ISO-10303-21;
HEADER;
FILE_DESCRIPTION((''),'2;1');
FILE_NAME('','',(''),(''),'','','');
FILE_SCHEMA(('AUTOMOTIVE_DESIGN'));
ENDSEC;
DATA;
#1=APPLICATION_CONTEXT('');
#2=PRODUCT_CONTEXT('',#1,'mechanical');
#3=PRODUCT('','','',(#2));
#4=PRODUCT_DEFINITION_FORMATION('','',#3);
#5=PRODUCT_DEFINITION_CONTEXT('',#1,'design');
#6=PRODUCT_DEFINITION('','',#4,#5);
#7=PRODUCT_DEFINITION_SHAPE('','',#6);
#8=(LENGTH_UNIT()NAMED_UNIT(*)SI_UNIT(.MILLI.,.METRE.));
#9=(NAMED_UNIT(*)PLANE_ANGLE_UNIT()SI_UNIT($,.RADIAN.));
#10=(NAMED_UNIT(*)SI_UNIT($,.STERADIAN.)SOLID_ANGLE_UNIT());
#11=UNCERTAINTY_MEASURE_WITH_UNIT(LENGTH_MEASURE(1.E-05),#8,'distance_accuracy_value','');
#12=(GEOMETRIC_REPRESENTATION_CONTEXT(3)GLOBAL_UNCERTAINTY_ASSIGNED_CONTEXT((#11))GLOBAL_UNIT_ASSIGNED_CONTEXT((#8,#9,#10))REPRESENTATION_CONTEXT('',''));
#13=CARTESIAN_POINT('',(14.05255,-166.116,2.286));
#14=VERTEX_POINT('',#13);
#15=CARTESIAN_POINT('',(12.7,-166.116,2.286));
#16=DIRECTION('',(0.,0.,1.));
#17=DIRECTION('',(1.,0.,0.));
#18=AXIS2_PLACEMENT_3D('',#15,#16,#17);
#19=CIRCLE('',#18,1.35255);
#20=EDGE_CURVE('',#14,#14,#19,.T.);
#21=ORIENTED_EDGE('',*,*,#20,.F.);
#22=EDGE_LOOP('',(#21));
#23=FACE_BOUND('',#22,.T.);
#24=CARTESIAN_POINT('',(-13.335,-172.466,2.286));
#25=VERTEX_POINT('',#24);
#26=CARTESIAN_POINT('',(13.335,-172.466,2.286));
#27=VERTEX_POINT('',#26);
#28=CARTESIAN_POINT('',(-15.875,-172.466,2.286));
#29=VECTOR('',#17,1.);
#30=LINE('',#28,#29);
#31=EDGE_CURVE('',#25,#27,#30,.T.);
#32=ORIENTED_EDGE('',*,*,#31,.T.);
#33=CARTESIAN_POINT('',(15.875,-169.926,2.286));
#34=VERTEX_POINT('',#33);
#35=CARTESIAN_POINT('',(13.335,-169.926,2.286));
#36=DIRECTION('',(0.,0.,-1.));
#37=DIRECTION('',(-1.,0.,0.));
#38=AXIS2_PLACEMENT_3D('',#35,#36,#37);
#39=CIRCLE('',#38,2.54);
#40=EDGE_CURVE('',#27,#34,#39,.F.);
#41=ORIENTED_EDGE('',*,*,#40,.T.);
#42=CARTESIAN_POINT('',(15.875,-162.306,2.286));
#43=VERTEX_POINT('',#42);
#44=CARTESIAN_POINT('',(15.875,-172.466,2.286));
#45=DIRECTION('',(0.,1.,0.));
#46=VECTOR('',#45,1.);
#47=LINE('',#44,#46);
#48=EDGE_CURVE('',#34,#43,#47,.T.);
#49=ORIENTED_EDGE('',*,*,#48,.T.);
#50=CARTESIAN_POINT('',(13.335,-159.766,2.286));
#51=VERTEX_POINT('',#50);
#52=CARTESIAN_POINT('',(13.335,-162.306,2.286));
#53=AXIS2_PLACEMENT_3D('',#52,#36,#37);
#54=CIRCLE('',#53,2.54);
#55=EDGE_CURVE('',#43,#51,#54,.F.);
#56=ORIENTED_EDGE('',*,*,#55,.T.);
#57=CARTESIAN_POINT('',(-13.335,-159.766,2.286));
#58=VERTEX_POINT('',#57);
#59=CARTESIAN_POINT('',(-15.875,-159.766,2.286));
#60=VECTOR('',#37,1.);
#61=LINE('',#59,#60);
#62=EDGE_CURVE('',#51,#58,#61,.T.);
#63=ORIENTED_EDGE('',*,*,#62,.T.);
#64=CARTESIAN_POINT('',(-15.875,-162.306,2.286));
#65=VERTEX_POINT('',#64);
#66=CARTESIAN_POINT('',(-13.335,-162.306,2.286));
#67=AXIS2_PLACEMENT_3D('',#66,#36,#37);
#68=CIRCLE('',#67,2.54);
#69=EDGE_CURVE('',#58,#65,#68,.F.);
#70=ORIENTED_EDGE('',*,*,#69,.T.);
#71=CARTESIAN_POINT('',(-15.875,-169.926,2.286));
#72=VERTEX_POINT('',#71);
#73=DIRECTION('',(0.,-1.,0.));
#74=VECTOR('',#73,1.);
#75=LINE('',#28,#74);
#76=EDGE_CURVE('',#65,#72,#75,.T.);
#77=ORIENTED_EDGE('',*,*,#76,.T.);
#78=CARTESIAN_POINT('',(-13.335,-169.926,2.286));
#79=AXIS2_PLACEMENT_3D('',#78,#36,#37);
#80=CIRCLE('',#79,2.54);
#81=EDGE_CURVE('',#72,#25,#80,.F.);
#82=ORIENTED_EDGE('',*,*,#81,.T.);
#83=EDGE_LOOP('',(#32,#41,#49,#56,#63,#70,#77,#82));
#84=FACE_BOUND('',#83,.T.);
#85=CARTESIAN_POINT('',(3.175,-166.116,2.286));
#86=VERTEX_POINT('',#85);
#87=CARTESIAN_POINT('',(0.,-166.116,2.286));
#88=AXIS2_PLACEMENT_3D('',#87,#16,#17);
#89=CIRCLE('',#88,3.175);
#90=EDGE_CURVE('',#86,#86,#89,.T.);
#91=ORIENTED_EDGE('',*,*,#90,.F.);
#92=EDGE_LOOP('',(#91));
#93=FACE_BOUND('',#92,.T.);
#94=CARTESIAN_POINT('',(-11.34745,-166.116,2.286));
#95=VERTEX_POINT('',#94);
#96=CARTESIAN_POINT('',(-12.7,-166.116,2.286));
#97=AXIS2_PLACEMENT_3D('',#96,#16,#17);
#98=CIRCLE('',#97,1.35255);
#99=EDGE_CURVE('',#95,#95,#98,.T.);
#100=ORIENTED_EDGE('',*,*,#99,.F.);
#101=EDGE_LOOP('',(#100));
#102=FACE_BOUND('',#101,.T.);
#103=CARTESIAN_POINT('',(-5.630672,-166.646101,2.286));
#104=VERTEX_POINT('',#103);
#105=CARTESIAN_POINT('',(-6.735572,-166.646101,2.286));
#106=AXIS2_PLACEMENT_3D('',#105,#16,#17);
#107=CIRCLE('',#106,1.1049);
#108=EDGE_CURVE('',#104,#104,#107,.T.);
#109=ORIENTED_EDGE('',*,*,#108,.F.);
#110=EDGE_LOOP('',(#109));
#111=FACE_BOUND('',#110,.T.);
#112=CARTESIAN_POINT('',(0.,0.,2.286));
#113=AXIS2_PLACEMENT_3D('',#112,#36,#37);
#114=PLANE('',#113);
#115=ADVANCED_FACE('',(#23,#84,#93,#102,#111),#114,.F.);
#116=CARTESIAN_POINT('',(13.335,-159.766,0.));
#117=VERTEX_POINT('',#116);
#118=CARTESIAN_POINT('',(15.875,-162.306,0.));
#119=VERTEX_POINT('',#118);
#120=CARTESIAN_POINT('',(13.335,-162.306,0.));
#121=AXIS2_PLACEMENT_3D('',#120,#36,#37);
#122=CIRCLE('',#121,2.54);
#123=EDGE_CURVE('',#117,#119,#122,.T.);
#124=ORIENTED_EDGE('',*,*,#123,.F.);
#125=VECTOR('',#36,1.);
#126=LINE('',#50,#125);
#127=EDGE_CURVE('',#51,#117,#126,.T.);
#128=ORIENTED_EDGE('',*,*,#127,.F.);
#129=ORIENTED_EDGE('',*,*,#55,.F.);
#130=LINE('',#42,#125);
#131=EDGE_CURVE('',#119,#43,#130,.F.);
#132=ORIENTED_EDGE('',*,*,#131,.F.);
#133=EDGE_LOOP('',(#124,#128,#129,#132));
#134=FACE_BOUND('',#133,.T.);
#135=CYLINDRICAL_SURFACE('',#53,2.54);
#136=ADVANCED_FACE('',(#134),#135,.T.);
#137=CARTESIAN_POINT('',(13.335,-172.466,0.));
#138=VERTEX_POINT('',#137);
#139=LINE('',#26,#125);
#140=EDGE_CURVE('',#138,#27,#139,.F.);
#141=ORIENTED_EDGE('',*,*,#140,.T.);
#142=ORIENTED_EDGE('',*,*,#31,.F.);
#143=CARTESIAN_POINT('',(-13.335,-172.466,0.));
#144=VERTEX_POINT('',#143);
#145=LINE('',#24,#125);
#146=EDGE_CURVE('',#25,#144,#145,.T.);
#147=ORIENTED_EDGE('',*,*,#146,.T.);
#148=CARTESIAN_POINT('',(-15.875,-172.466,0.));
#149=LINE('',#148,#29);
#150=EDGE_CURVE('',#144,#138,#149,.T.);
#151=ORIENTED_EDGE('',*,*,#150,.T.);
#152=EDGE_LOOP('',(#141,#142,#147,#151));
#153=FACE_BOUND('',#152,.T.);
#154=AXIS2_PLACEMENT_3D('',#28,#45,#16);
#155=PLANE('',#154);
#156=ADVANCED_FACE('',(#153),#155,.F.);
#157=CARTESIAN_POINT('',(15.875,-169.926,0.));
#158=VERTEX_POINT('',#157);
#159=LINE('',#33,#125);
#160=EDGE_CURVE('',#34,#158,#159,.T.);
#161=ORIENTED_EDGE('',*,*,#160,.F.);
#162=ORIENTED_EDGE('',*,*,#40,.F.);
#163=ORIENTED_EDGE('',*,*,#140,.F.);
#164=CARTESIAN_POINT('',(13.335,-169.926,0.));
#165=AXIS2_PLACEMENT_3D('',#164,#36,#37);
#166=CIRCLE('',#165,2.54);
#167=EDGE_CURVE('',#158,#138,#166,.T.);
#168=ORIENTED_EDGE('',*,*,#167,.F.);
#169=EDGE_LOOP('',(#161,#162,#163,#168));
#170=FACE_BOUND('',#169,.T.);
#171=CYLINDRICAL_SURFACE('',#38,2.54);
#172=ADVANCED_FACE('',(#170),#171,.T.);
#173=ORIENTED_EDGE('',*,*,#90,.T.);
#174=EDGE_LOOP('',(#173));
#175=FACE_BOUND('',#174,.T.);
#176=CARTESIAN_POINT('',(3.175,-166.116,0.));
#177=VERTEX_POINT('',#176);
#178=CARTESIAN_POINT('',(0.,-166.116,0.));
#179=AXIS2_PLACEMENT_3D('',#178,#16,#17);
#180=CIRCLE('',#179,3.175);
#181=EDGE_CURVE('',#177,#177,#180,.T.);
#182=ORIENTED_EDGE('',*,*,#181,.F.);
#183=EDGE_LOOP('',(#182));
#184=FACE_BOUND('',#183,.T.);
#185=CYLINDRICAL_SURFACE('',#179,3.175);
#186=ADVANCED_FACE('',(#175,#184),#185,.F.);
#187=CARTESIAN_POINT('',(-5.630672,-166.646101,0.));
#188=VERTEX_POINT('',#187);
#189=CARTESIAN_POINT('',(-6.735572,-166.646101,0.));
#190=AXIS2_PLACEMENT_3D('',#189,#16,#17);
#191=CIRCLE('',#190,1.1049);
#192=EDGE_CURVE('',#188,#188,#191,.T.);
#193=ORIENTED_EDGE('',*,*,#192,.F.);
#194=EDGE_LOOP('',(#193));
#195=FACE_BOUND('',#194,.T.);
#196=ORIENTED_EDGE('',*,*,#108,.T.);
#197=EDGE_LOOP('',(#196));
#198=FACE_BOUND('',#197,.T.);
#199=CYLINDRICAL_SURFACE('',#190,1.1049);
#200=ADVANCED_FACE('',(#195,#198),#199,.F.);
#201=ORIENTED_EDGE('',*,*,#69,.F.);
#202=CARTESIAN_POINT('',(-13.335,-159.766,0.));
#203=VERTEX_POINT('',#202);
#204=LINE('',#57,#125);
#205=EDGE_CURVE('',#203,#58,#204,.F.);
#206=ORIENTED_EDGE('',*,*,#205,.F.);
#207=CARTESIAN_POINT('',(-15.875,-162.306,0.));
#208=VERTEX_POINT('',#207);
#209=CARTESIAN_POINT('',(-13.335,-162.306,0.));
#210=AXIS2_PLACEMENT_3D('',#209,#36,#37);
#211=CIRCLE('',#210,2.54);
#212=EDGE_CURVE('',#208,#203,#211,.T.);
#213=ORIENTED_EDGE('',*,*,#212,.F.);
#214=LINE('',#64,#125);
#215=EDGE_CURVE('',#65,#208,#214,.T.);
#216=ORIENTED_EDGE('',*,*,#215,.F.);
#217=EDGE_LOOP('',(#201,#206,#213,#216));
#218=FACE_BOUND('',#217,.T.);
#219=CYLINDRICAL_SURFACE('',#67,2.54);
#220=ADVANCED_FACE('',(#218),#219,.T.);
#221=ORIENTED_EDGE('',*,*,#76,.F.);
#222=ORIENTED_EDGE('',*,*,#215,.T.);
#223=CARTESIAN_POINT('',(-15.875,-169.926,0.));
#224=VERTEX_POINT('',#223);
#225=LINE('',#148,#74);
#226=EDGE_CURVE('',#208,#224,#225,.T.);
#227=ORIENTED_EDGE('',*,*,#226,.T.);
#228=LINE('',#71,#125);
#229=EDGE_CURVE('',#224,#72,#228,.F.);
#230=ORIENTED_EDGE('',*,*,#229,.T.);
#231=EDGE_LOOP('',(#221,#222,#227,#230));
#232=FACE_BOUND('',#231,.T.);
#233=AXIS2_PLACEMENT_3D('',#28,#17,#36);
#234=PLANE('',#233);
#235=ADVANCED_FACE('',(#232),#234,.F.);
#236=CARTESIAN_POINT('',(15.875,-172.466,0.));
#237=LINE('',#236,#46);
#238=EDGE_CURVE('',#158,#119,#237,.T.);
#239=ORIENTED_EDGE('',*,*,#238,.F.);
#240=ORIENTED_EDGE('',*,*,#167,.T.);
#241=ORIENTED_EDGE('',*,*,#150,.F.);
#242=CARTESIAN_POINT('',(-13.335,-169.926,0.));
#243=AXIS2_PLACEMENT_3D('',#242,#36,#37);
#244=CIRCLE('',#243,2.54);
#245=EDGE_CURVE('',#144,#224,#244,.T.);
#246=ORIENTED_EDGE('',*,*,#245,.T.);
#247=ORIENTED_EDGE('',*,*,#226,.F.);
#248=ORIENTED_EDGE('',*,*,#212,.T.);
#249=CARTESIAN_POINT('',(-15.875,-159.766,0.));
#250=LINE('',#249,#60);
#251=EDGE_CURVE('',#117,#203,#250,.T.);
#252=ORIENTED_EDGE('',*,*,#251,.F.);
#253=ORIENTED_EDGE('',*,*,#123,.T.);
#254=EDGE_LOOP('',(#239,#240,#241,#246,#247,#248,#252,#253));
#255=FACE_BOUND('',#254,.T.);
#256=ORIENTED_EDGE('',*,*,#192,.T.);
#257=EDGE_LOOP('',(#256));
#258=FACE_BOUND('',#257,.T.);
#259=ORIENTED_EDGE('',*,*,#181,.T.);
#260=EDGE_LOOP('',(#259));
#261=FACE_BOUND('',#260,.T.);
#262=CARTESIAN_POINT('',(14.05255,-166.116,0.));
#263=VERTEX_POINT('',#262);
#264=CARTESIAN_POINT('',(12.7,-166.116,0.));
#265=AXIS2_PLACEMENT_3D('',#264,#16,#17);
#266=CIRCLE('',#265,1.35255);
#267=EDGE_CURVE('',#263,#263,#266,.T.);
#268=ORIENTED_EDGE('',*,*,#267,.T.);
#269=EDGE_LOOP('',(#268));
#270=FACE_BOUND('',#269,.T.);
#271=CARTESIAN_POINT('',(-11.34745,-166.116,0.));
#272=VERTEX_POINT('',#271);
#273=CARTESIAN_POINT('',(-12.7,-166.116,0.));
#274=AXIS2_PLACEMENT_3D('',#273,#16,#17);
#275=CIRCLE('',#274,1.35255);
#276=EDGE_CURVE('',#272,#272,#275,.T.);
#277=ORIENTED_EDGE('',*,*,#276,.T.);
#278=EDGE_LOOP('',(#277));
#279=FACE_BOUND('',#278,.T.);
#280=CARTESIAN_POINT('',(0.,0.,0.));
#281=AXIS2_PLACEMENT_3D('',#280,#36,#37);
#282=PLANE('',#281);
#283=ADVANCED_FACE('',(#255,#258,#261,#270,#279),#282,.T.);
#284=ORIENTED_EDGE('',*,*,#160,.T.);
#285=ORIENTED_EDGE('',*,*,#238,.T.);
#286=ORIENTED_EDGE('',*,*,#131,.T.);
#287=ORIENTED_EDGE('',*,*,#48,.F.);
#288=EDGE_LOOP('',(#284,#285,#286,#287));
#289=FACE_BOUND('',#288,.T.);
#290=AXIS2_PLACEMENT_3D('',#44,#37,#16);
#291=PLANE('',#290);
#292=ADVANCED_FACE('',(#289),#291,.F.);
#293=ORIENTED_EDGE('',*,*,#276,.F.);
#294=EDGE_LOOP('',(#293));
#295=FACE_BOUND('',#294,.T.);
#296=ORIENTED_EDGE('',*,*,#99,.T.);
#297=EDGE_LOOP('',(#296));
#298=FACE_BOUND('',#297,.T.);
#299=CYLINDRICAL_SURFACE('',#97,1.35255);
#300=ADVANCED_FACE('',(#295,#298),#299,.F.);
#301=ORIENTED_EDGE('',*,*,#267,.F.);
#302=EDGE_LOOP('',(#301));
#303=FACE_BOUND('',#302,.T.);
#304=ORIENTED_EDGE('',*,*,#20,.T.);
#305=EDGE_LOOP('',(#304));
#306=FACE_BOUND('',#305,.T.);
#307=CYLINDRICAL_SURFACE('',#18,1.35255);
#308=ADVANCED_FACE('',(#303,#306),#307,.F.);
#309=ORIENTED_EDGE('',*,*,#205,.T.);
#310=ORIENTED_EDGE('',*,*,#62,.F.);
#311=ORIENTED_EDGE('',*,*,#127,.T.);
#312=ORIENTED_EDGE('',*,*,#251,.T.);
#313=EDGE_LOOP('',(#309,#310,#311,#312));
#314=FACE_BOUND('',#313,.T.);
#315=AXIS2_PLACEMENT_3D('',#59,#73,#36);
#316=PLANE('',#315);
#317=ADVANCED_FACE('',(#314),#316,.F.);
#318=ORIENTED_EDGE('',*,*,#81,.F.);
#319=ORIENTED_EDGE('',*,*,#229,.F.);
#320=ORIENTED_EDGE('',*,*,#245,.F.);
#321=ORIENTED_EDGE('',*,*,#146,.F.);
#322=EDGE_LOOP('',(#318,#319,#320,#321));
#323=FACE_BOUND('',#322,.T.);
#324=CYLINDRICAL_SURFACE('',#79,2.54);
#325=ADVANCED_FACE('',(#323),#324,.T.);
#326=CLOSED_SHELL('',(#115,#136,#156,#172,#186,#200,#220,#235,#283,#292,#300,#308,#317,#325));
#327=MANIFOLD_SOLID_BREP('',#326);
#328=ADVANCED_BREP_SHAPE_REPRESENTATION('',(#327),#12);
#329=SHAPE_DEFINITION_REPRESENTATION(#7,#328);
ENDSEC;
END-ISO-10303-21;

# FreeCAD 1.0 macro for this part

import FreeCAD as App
import Part
import Sketcher
Q = App.Units.Quantity


def edges_at(feature, points):
    """Names of the edges that pass closest to the given points."""
    edges = feature.Shape.Edges
    near = lambda p: min(range(len(edges)), key=lambda i: edges[i].distToShape(Part.Vertex(*p))[0])
    return sorted({f"Edge{near(p) + 1}" for p in points})


def add_polygon(sketch, points):
    """Adds a closed chain of lines whose ends are joined by coincident constraints."""
    first, n = sketch.GeometryCount, len(points)
    for a, b in zip(points, points[1:] + points[:1]):
        sketch.addGeometry(Part.LineSegment(App.Vector(*a, 0), App.Vector(*b, 0)), False)
    for i in range(n):
        sketch.addConstraint(Sketcher.Constraint("Coincident", first + i, 2, first + (i + 1) % n, 1))

doc = App.newDocument("Part")
params = doc.addObject("Spreadsheet::Sheet", "Params")
for row, (alias, value) in enumerate([
    ("sketch1_height", "0.5 in"),
    ("sketch1_width", "1.25 in"),
    ("pad1_length", "0.09 in"),
    ("fillet_radius", "0.1 in"),
    ("sketch2_diameter", "0.25 in"),
    ("sketch2_diameter2", "0.087 in"),
    ("hole_diameter", "0.1065 in"),
], start=1):
    params.set(f"A{row}", alias)
    params.set(f"B{row}", "=" + value)
    params.setAlias(f"B{row}", alias)

body = doc.addObject("PartDesign::Body", "Body")

# Sketch on XY plane
sketch1 = body.newObject("Sketcher::SketchObject", "Sketch")
sketch1.AttachmentSupport = (doc.getObject("XY_Plane"), [""])
sketch1.MapMode = "FlatFace"
add_polygon(sketch1, [(-16, -160), (-16, -172), (16, -172), (16, -160)])  # lines 0-3
sketch1.addConstraint([
    Sketcher.Constraint("Vertical", 0),
    Sketcher.Constraint("Horizontal", 1),
    Sketcher.Constraint("Vertical", 2),
    Sketcher.Constraint("Horizontal", 3),
    Sketcher.Constraint("DistanceY", 0, 2, 0, 1, Q("0.5 in")),
    Sketcher.Constraint("DistanceX", 1, 1, 1, 2, Q("1.25 in")),
    Sketcher.Constraint("DistanceY", 0, 2, -1, 1, Q("6.79 in")),
    Sketcher.Constraint("DistanceX", 0, 2, -1, 1, Q("0.625 in")),
])
sketch1.setExpression("Constraints[8]", "Params.sketch1_height")
sketch1.setExpression("Constraints[9]", "Params.sketch1_width")
pad1 = body.newObject("PartDesign::Pad", "Pad")
pad1.Profile = sketch1
pad1.setExpression("Length", "Params.pad1_length")
doc.recompute()

fillet = body.newObject("PartDesign::Fillet", "Fillet")
fillet.Base = (pad1, edges_at(pad1, [
    (15.875, -172.466, 1.143),
    (-15.875, -172.466, 1.143),
    (-15.875, -159.766, 1.143),
    (15.875, -159.766, 1.143),
]))
fillet.setExpression("Radius", "Params.fillet_radius")

# Sketch on XY plane
sketch2 = body.newObject("Sketcher::SketchObject", "Sketch001")
sketch2.AttachmentSupport = (doc.getObject("XY_Plane"), [""])
sketch2.MapMode = "FlatFace"
sketch2.AttachmentOffset = App.Placement(App.Vector(0, 0, 0.09 * 25.4), App.Rotation())
sketch2.addGeometry([
    Part.Circle(App.Vector(0, -166.1, 0), App.Vector(0, 0, 1), 3.2),
    Part.Circle(App.Vector(-6.7, -166.6, 0), App.Vector(0, 0, 1), 1.1),
], False)
sketch2.addConstraint([
    Sketcher.Constraint("PointOnObject", 0, 3, -2),
    Sketcher.Constraint("Diameter", 0, Q("0.25 in")),
    Sketcher.Constraint("Diameter", 1, Q("0.087 in")),
    Sketcher.Constraint("DistanceY", 0, 3, -1, 1, Q("6.54 in")),
    Sketcher.Constraint("DistanceY", 1, 3, -1, 1, 166.646101),
    Sketcher.Constraint("DistanceX", 1, 3, -1, 1, 6.735572),
])
sketch2.setExpression("Constraints[1]", "Params.sketch2_diameter")
sketch2.setExpression("Constraints[2]", "Params.sketch2_diameter2")
pocket1 = body.newObject("PartDesign::Pocket", "Pocket")
pocket1.Profile = sketch2
pocket1.Type = "ThroughAll"

# Sketch on XY plane
sketch3 = body.newObject("Sketcher::SketchObject", "Sketch002")
sketch3.AttachmentSupport = (doc.getObject("XY_Plane"), [""])
sketch3.MapMode = "FlatFace"
sketch3.AttachmentOffset = App.Placement(App.Vector(0, 0, 0.09 * 25.4), App.Rotation())
sketch3.addGeometry([
    Part.Circle(App.Vector(12.7, -166.1, 0), App.Vector(0, 0, 1), 1.4),
    Part.Circle(App.Vector(-12.7, -166.1, 0), App.Vector(0, 0, 1), 1.4),
], False)
sketch3.addConstraint([
    Sketcher.Constraint("Equal", 0, 1),
    Sketcher.Constraint("Symmetric", 0, 3, 1, 3, -2),
    Sketcher.Constraint("DistanceX", 1, 3, 0, 3, Q("1 in")),
    Sketcher.Constraint("Diameter", 0, Q("0.1065 in")),
    Sketcher.Constraint("DistanceY", 0, 3, -1, 1, Q("6.54 in")),
])
doc.recompute()
hole = body.newObject("PartDesign::Hole", "Hole")
hole.Profile = sketch3
hole.ThreadType = "None"
hole.setExpression("Diameter", "Params.hole_diameter")
hole.DepthType = "ThroughAll"

doc.recompute()
